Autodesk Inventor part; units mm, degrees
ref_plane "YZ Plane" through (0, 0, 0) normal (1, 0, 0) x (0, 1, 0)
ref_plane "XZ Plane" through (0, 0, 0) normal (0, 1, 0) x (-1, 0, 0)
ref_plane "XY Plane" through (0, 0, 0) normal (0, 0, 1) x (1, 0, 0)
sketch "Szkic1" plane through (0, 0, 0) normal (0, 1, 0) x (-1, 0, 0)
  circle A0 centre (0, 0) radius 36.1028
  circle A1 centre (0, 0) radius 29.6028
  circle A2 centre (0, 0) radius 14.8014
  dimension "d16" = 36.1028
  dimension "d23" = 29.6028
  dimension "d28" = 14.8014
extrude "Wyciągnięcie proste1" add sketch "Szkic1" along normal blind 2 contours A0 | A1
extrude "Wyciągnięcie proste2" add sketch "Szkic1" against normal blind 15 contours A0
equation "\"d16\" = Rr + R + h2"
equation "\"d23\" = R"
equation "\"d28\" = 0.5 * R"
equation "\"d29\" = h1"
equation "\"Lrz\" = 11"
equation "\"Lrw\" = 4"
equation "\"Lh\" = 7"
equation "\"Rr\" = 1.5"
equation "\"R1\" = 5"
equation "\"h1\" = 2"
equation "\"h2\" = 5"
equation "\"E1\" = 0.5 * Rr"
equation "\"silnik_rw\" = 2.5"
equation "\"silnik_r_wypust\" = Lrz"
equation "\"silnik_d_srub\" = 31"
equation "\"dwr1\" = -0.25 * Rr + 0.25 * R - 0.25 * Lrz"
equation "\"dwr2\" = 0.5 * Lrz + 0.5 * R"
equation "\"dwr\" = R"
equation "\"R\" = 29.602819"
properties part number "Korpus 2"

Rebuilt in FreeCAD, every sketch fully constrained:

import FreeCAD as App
import Part
import Sketcher

V = App.Vector
Q = App.Units.Quantity

doc = App.newDocument("Part")
body = doc.addObject("PartDesign::Body", "Body")

# Sketch on XZ plane
sketch1 = body.newObject("Sketcher::SketchObject", "Sketch")
sketch1.AttachmentSupport = (doc.getObject("XZ_Plane"), [""])
sketch1.MapMode = "FlatFace"
sketch1.addGeometry(Part.Circle(V(0, 0, 0), V(0, 0, 1), 36), False)
sketch1.addGeometry(Part.Circle(V(0, 0, 0), V(0, 0, 1), 15), False)
sketch1.addConstraint(Sketcher.Constraint("Coincident", 0, 3, -1, 1))
sketch1.addConstraint(Sketcher.Constraint("Coincident", 1, 3, -1, 1))
sketch1.addConstraint(Sketcher.Constraint("Diameter", 0, Q("72.2056 mm")))
sketch1.addConstraint(Sketcher.Constraint("Diameter", 1, Q("29.6028 mm")))
pad1 = body.newObject("PartDesign::Pad", "Pad")
pad1.Profile = sketch1
pad1.Length = 2
pad1.Reversed = True

# Sketch on XZ plane
sketch2 = body.newObject("Sketcher::SketchObject", "Sketch001")
sketch2.AttachmentSupport = (doc.getObject("XZ_Plane"), [""])
sketch2.MapMode = "FlatFace"
sketch2.addGeometry(Part.Circle(V(0, 0, 0), V(0, 0, 1), 36), False)
sketch2.addGeometry(Part.Circle(V(0, 0, 0), V(0, 0, 1), 30), False)
sketch2.addConstraint(Sketcher.Constraint("Coincident", 0, 3, -1, 1))
sketch2.addConstraint(Sketcher.Constraint("Coincident", 1, 3, -1, 1))
sketch2.addConstraint(Sketcher.Constraint("Diameter", 0, Q("72.2056 mm")))
sketch2.addConstraint(Sketcher.Constraint("Diameter", 1, Q("59.2056 mm")))
pad2 = body.newObject("PartDesign::Pad", "Pad001")
pad2.Profile = sketch2
pad2.Length = 15

doc.recompute()
